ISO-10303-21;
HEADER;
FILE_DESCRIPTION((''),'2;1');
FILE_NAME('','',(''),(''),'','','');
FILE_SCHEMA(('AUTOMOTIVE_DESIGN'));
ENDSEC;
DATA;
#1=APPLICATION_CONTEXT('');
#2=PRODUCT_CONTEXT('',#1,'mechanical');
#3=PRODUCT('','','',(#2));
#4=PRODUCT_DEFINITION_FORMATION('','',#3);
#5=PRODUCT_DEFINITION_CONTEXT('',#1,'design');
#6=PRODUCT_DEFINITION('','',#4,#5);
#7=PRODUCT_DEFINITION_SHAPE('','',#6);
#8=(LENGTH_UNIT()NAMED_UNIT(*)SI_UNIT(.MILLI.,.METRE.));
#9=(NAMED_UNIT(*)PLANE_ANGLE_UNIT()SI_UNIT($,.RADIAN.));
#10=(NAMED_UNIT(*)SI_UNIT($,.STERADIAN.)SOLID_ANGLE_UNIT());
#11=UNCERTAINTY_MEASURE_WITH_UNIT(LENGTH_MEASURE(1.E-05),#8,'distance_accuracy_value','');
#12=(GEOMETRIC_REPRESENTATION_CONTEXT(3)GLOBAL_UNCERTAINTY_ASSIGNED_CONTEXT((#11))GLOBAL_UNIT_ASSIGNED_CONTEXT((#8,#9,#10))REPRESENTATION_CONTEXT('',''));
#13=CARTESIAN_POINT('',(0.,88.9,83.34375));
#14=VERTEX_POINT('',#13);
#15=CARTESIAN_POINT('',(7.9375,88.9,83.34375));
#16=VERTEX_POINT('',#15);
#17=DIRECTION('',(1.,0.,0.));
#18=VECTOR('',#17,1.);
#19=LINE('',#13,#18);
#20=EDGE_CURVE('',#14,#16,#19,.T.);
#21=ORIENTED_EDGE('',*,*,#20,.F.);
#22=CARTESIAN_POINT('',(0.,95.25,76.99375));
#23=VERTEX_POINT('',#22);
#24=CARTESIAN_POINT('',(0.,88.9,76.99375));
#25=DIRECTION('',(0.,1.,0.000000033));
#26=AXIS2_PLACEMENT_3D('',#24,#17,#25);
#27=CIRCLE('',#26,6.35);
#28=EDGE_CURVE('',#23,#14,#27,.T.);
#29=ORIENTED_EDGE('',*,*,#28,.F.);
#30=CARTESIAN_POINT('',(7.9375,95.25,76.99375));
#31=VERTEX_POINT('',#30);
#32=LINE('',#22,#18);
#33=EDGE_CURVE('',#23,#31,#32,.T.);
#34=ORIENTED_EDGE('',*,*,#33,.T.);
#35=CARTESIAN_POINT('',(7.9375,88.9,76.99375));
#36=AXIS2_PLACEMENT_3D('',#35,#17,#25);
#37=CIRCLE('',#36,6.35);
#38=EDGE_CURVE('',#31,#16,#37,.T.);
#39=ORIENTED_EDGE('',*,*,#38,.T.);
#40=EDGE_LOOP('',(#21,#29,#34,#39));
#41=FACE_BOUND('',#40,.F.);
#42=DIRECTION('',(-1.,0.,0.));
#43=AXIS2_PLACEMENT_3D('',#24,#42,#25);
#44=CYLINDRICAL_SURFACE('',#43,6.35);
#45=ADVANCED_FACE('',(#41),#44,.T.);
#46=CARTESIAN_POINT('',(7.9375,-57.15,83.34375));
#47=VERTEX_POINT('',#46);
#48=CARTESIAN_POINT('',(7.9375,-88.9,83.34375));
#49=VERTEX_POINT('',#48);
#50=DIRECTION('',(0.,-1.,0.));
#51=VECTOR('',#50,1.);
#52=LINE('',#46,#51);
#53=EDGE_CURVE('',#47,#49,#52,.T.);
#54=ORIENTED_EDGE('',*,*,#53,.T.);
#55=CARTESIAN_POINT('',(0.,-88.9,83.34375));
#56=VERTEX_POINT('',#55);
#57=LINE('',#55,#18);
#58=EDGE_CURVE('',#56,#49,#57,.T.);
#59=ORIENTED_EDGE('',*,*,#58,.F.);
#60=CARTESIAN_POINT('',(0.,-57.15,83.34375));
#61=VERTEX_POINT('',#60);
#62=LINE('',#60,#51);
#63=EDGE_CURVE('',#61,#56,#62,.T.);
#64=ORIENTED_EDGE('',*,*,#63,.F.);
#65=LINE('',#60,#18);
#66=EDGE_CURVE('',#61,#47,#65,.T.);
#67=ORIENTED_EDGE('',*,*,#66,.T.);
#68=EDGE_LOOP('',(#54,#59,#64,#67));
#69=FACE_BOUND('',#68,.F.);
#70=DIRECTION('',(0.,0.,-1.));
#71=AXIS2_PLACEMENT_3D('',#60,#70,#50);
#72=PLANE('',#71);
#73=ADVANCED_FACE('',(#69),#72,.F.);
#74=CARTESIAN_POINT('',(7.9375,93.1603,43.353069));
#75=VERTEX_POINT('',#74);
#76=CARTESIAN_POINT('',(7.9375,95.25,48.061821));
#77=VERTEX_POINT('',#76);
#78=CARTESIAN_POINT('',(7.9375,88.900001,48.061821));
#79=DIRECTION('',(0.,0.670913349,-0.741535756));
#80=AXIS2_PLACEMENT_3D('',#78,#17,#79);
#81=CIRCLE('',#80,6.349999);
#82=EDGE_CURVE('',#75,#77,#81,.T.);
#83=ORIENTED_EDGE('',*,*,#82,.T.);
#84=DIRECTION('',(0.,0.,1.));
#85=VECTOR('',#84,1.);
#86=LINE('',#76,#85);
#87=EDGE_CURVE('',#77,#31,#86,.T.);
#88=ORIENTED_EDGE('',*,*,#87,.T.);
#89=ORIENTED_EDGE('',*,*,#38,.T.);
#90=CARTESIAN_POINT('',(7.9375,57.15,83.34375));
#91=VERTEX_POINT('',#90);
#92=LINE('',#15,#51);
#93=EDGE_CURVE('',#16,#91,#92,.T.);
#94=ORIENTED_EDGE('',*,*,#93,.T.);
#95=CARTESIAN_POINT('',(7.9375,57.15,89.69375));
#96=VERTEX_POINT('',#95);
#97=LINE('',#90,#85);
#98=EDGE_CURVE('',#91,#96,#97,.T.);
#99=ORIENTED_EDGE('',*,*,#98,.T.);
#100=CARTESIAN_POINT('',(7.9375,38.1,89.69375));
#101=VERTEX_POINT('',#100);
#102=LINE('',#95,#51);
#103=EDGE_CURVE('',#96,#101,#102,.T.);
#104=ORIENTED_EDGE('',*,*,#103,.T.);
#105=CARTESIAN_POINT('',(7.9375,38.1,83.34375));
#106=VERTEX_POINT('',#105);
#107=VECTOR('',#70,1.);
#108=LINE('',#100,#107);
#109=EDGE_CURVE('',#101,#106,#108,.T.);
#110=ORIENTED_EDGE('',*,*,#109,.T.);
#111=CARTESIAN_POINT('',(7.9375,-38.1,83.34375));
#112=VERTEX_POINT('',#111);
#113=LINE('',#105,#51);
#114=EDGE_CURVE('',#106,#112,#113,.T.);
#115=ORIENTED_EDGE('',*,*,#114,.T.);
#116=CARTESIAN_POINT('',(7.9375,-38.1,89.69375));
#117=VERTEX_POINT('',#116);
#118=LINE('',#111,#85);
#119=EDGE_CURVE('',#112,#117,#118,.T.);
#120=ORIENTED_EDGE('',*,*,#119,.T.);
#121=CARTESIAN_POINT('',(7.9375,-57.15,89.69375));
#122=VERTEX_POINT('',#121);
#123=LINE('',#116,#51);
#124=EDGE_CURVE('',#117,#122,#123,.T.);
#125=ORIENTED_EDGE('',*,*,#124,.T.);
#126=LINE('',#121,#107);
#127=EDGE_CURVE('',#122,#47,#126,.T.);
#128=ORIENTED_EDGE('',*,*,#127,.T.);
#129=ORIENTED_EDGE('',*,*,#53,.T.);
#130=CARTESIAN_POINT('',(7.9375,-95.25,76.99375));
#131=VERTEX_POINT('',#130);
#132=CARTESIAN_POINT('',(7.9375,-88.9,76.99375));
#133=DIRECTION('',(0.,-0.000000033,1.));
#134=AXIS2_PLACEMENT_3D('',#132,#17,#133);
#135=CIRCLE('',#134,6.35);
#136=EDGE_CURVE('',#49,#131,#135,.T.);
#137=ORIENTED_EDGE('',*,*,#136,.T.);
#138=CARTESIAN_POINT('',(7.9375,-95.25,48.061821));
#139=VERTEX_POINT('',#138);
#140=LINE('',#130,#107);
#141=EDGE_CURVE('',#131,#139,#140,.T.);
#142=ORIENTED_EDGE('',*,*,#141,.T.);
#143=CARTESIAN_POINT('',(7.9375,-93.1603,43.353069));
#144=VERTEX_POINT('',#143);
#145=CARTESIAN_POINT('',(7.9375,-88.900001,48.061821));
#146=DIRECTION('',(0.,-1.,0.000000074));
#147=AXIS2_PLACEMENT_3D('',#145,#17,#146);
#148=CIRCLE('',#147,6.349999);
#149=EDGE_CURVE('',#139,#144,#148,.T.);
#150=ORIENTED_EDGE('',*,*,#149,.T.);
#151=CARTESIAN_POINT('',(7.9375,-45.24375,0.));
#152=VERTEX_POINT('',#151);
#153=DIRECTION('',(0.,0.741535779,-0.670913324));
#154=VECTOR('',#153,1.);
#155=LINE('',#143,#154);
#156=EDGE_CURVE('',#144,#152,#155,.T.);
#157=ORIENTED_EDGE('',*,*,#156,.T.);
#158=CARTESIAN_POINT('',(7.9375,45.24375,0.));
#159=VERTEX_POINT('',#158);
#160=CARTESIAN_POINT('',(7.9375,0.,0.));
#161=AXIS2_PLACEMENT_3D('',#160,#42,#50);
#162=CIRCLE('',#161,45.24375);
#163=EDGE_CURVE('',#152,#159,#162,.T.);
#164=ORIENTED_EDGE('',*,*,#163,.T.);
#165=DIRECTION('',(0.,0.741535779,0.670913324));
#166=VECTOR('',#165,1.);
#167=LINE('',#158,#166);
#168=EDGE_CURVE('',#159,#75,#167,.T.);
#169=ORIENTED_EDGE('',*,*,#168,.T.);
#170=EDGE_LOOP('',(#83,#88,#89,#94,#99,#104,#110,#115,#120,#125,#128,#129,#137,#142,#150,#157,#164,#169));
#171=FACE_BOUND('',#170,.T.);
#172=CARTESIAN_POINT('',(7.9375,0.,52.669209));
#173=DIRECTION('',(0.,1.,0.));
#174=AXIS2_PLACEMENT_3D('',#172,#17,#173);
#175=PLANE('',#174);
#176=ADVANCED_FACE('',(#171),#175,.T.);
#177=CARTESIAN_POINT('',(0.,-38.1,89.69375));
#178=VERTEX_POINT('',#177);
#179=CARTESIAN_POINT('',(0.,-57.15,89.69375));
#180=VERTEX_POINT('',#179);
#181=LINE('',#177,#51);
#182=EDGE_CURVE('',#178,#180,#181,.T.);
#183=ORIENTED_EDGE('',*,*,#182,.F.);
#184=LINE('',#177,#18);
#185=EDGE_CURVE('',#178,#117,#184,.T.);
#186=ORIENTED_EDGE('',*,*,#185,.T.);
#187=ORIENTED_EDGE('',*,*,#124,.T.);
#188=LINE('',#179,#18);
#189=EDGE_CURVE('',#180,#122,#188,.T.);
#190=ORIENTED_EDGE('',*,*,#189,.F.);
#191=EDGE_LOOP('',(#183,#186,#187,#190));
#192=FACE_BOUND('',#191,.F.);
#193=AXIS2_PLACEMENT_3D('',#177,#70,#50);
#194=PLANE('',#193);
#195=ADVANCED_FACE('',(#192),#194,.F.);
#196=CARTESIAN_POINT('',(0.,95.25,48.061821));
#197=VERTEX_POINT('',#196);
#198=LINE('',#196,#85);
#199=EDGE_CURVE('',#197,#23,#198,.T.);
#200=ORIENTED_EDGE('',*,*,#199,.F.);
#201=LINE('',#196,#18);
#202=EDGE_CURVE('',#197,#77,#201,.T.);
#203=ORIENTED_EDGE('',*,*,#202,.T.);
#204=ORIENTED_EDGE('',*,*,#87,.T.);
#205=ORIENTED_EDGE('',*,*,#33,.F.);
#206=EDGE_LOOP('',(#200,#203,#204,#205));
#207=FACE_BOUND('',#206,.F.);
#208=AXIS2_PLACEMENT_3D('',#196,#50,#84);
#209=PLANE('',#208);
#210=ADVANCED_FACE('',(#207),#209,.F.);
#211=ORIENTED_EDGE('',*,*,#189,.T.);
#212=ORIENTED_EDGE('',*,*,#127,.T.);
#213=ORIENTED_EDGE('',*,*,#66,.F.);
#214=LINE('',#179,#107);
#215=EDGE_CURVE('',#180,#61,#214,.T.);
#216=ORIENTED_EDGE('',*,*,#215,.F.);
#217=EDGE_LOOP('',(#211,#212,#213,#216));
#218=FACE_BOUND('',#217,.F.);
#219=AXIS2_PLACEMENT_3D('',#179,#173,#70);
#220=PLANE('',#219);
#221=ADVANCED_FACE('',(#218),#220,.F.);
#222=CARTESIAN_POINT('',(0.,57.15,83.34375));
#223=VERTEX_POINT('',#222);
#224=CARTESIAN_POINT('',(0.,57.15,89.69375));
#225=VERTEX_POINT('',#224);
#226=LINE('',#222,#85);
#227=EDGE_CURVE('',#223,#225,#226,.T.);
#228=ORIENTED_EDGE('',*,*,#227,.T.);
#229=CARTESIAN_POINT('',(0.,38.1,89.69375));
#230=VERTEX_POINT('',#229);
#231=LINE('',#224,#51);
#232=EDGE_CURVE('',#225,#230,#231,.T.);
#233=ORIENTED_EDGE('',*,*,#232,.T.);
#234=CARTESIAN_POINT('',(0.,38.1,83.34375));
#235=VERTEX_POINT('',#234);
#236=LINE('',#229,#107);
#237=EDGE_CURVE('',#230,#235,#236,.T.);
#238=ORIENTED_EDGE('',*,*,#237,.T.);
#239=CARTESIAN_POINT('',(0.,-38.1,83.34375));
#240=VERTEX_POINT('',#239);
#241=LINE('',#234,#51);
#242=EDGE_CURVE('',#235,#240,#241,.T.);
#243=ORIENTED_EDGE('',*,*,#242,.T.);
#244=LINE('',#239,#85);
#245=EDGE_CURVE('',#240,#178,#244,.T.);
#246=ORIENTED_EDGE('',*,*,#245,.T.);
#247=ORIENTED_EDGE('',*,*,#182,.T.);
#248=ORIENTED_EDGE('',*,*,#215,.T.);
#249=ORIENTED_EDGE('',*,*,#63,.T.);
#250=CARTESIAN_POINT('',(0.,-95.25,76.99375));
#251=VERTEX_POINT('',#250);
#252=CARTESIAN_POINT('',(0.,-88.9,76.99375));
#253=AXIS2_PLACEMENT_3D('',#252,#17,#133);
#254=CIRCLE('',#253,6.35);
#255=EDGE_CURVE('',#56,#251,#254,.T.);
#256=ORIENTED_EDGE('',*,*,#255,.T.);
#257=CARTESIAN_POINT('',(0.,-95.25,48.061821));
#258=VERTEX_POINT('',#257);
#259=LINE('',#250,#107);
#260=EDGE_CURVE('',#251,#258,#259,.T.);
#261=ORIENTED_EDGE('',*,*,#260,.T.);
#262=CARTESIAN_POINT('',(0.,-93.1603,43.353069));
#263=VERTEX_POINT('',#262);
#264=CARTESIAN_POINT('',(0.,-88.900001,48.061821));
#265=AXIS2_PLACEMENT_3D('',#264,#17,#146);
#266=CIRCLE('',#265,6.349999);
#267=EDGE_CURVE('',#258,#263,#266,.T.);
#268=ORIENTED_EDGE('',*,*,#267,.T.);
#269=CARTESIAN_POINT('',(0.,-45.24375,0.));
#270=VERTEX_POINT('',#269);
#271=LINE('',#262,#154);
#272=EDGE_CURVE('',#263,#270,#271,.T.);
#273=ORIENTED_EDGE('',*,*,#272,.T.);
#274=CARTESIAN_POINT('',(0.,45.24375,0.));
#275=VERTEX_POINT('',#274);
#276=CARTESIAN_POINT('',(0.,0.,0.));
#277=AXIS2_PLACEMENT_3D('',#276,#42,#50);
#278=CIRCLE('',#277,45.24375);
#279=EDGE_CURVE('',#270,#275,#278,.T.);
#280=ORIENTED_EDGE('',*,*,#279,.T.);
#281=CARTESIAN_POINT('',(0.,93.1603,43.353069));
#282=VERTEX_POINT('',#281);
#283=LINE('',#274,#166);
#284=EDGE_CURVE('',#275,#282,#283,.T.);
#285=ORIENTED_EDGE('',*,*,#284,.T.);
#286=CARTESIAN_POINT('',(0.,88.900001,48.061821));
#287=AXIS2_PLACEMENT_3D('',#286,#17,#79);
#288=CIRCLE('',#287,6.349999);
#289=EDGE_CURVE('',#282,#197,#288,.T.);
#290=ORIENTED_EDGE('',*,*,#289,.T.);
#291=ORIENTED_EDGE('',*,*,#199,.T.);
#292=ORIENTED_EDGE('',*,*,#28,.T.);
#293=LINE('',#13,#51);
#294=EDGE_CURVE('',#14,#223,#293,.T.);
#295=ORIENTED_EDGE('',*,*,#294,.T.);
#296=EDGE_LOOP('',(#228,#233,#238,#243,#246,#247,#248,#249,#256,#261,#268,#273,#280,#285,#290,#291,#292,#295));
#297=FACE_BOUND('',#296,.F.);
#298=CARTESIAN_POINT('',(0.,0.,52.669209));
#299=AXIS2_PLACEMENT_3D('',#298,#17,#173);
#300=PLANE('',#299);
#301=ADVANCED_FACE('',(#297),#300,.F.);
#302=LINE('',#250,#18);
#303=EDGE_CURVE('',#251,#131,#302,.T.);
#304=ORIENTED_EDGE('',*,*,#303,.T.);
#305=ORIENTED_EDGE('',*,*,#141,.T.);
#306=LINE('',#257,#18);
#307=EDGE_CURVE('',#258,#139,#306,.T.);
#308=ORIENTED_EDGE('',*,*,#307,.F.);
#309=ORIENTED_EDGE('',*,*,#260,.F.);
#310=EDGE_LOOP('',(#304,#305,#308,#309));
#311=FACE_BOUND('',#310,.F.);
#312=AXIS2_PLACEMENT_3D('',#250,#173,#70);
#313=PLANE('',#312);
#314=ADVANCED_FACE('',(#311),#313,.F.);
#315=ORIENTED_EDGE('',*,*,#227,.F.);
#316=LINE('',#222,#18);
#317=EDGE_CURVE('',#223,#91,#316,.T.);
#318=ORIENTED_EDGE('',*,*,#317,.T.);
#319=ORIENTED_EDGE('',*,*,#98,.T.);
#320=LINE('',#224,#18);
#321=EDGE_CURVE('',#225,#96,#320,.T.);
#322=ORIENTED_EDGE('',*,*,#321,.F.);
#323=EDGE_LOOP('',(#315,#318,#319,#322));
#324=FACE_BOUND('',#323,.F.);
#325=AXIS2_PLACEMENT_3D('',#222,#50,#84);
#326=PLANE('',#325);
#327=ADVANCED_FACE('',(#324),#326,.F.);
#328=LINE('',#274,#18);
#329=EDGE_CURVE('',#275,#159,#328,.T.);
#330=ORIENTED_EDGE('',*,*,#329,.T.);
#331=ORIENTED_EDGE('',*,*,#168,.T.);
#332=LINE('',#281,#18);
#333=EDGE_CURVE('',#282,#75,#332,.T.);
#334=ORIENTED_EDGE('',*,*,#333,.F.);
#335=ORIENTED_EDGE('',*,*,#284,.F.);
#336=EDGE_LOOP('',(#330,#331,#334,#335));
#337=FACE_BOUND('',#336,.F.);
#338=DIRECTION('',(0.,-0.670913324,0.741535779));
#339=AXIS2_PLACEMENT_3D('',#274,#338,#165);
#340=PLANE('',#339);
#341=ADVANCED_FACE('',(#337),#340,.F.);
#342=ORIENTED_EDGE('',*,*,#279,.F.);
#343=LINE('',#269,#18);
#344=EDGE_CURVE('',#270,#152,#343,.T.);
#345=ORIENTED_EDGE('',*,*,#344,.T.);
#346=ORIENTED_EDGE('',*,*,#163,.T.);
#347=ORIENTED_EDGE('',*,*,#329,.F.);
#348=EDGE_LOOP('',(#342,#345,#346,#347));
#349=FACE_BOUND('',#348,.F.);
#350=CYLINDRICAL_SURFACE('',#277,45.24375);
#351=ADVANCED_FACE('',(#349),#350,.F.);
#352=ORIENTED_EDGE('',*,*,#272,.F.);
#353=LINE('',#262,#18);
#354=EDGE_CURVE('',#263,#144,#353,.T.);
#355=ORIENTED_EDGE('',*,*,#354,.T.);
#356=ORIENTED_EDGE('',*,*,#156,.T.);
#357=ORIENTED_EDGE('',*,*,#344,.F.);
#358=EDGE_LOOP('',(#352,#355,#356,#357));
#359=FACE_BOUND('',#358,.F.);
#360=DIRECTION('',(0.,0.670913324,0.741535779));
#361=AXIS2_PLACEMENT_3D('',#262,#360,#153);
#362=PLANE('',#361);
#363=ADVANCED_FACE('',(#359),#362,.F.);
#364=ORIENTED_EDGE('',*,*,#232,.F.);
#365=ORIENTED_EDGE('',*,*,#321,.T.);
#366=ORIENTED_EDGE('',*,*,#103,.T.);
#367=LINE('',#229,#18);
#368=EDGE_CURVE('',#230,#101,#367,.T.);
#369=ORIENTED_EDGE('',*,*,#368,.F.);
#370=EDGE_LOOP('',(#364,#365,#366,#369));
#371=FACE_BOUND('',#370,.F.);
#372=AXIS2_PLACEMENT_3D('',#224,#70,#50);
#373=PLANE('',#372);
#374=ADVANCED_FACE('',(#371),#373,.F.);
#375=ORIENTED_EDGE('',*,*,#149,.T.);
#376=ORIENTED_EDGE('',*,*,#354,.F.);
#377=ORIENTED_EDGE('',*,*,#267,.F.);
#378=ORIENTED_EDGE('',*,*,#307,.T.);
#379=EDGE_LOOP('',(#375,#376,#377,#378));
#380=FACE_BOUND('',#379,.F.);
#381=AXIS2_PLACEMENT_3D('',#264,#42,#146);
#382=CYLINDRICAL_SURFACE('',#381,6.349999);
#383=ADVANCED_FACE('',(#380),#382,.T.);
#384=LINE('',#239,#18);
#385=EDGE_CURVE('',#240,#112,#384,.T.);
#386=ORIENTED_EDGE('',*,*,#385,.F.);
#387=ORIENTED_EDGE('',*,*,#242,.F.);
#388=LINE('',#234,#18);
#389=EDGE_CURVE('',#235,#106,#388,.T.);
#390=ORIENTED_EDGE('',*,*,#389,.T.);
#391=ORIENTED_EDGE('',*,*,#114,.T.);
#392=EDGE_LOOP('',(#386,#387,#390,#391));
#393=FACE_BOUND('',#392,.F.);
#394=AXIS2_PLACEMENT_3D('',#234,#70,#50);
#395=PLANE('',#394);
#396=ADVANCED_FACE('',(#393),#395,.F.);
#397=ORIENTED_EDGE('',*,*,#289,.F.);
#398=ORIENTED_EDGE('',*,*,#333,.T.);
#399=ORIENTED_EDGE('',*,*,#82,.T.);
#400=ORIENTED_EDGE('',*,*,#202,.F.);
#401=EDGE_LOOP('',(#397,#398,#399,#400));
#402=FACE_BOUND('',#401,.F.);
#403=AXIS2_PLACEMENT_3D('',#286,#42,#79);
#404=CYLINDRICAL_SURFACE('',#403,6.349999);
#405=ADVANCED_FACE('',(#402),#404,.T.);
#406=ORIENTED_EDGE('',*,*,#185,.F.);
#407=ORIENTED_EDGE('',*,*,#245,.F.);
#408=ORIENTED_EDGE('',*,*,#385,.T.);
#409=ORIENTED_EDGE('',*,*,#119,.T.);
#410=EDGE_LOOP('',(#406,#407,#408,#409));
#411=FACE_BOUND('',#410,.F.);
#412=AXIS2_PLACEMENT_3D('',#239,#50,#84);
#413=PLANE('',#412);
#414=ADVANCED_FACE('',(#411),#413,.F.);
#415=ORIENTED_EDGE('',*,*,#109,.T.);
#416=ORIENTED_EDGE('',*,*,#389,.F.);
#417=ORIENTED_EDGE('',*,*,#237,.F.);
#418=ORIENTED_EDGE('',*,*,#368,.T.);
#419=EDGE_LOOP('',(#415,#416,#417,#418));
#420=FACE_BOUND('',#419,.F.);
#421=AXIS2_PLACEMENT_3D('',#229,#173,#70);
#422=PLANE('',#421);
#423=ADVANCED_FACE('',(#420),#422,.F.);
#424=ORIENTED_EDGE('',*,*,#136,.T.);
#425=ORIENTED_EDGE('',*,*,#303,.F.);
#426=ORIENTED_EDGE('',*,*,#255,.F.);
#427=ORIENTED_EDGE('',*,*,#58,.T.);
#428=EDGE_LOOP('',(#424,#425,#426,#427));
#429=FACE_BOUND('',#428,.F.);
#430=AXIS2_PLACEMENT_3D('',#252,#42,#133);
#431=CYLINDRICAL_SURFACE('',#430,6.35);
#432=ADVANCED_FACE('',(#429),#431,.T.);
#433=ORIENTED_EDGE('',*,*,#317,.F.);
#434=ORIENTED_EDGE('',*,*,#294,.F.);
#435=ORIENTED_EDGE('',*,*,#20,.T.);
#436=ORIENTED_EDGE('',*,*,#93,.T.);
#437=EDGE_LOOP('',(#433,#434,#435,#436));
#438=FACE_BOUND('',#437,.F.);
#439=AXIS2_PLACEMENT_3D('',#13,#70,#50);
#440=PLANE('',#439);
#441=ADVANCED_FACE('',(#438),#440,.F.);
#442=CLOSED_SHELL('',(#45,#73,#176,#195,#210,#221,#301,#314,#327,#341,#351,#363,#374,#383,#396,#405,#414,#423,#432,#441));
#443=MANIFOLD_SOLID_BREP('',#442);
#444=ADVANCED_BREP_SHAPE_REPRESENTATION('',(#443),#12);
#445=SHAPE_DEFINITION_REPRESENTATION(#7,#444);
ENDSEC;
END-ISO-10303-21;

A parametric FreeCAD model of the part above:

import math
import FreeCAD as App
import Part
import Sketcher

V = App.Vector
Q = App.Units.Quantity

doc = App.newDocument("Part")
body = doc.addObject("PartDesign::Body", "Body")

# Sketch on YZ plane
sketch1 = doc.addObject("Sketcher::SketchObject", "Sketch")
body.addObject(sketch1)
sketch1.AttachmentSupport = (doc.YZ_Plane, [""])
sketch1.MapMode = "FlatFace"
sketch1.addGeometry(Part.ArcOfCircle(Part.Circle(V(0, 0, 0), V(0, 0, 1), 45.24375), math.radians(0), math.radians(180)), False)
sketch1.addGeometry(Part.LineSegment(V(45.24375, 0, 0), V(93.1603, 43.353069, 0)), False)
sketch1.addGeometry(Part.ArcOfCircle(Part.Circle(V(88.900001, 48.061821, 0), V(0, 0, 1), 6.349999), math.radians(-47.862403), math.radians(0.000004)), False)
sketch1.addGeometry(Part.LineSegment(V(95.25, 48.061821, 0), V(95.25, 76.99375, 0)), False)
sketch1.addGeometry(Part.ArcOfCircle(Part.Circle(V(88.9, 76.99375, 0), V(0, 0, 1), 6.35), math.radians(0.000002), math.radians(89.999998)), False)
sketch1.addGeometry(Part.LineSegment(V(88.9, 83.34375, 0), V(57.15, 83.34375, 0)), False)
sketch1.addGeometry(Part.LineSegment(V(57.15, 83.34375, 0), V(57.15, 89.69375, 0)), False)
sketch1.addGeometry(Part.LineSegment(V(57.15, 89.69375, 0), V(38.1, 89.69375, 0)), False)
sketch1.addGeometry(Part.LineSegment(V(38.1, 89.69375, 0), V(38.1, 83.34375, 0)), False)
sketch1.addGeometry(Part.LineSegment(V(38.1, 83.34375, 0), V(-38.1, 83.34375, 0)), False)
sketch1.addGeometry(Part.LineSegment(V(-38.1, 83.34375, 0), V(-38.1, 89.69375, 0)), False)
sketch1.addGeometry(Part.LineSegment(V(-38.1, 89.69375, 0), V(-57.15, 89.69375, 0)), False)
sketch1.addGeometry(Part.LineSegment(V(-57.15, 89.69375, 0), V(-57.15, 83.34375, 0)), False)
sketch1.addGeometry(Part.LineSegment(V(-57.15, 83.34375, 0), V(-88.9, 83.34375, 0)), False)
sketch1.addGeometry(Part.ArcOfCircle(Part.Circle(V(-88.9, 76.99375, 0), V(0, 0, 1), 6.35), math.radians(90.000002), math.radians(179.999998)), False)
sketch1.addGeometry(Part.LineSegment(V(-95.25, 76.99375, 0), V(-95.25, 48.061821, 0)), False)
sketch1.addGeometry(Part.ArcOfCircle(Part.Circle(V(-88.900001, 48.061821, 0), V(0, 0, 1), 6.349999), math.radians(179.999996), math.radians(227.862403)), False)
sketch1.addGeometry(Part.LineSegment(V(-93.1603, 43.353069, 0), V(-45.24375, 0, 0)), False)
sketch1.addConstraint(Sketcher.Constraint("Coincident", 0, 1, 1, 1))
sketch1.addConstraint(Sketcher.Constraint("Tangent", 1, 2, 2, 1))
sketch1.addConstraint(Sketcher.Constraint("Tangent", 2, 2, 3, 1))
sketch1.addConstraint(Sketcher.Constraint("Tangent", 3, 2, 4, 1))
sketch1.addConstraint(Sketcher.Constraint("Tangent", 4, 2, 5, 1))
sketch1.addConstraint(Sketcher.Constraint("Coincident", 5, 2, 6, 1))
sketch1.addConstraint(Sketcher.Constraint("Coincident", 6, 2, 7, 1))
sketch1.addConstraint(Sketcher.Constraint("Coincident", 7, 2, 8, 1))
sketch1.addConstraint(Sketcher.Constraint("Coincident", 8, 2, 9, 1))
sketch1.addConstraint(Sketcher.Constraint("Coincident", 9, 2, 10, 1))
sketch1.addConstraint(Sketcher.Constraint("Coincident", 10, 2, 11, 1))
sketch1.addConstraint(Sketcher.Constraint("Coincident", 11, 2, 12, 1))
sketch1.addConstraint(Sketcher.Constraint("Coincident", 12, 2, 13, 1))
sketch1.addConstraint(Sketcher.Constraint("Tangent", 13, 2, 14, 1))
sketch1.addConstraint(Sketcher.Constraint("Tangent", 14, 2, 15, 1))
sketch1.addConstraint(Sketcher.Constraint("Tangent", 15, 2, 16, 1))
sketch1.addConstraint(Sketcher.Constraint("Tangent", 16, 2, 17, 1))
sketch1.addConstraint(Sketcher.Constraint("Coincident", 17, 2, 0, 2))
sketch1.addConstraint(Sketcher.Constraint("Vertical", 3))
sketch1.addConstraint(Sketcher.Constraint("Horizontal", 5))
sketch1.addConstraint(Sketcher.Constraint("Vertical", 6))
sketch1.addConstraint(Sketcher.Constraint("Horizontal", 7))
sketch1.addConstraint(Sketcher.Constraint("Vertical", 8))
sketch1.addConstraint(Sketcher.Constraint("Horizontal", 9))
sketch1.addConstraint(Sketcher.Constraint("Vertical", 10))
sketch1.addConstraint(Sketcher.Constraint("Horizontal", 11))
sketch1.addConstraint(Sketcher.Constraint("Vertical", 12))
sketch1.addConstraint(Sketcher.Constraint("Horizontal", 13))
sketch1.addConstraint(Sketcher.Constraint("Vertical", 15))
sketch1.addConstraint(Sketcher.Constraint("Coincident", 0, 3, -1, 1))
sketch1.addConstraint(Sketcher.Constraint("Equal", 2, 4))
sketch1.addConstraint(Sketcher.Constraint("Equal", 4, 14))
sketch1.addConstraint(Sketcher.Constraint("Equal", 14, 16))
sketch1.addConstraint(Sketcher.Constraint("Symmetric", 4, 3, 14, 3, -2))
sketch1.addConstraint(Sketcher.Constraint("Symmetric", 7, 2, 10, 2, -2))
sketch1.addConstraint(Sketcher.Constraint("Symmetric", 1, 2, 16, 2, -2))
sketch1.addConstraint(Sketcher.Constraint("PointOnObject", 0, 1, -1))
sketch1.addConstraint(Sketcher.Constraint("Horizontal", 5, 2, 8, 2))
sketch1.addConstraint(Sketcher.Constraint("Equal", 7, 11))
sketch1.addConstraint(Sketcher.Constraint("DistanceX", 9, 2, 9, 1, Q("3 in")))
sketch1.addConstraint(Sketcher.Constraint("Radius", 2, Q("0.25 in")))
sketch1.addConstraint(Sketcher.Constraint("Radius", 0, Q("1.78125 in")))
sketch1.addConstraint(Sketcher.Constraint("DistanceX", 14, 3, 4, 3, Q("7 in")))
sketch1.addConstraint(Sketcher.Constraint("DistanceX", 5, 2, 5, 1, Q("1.25 in")))
sketch1.addConstraint(Sketcher.Constraint("DistanceY", 6, 1, 6, 2, Q("0.25 in")))
sketch1.addConstraint(Sketcher.Constraint("DistanceY", -1, 1, 4, 3, Q("3.03125 in")))
sketch1.addConstraint(Sketcher.Constraint("DistanceY", 3, 1, 3, 2, 28.931929))
pad1 = doc.addObject("PartDesign::Pad", "Pad")
body.addObject(pad1)
pad1.Profile = sketch1
pad1.Length = Q("0.3125 in")

doc.recompute()
